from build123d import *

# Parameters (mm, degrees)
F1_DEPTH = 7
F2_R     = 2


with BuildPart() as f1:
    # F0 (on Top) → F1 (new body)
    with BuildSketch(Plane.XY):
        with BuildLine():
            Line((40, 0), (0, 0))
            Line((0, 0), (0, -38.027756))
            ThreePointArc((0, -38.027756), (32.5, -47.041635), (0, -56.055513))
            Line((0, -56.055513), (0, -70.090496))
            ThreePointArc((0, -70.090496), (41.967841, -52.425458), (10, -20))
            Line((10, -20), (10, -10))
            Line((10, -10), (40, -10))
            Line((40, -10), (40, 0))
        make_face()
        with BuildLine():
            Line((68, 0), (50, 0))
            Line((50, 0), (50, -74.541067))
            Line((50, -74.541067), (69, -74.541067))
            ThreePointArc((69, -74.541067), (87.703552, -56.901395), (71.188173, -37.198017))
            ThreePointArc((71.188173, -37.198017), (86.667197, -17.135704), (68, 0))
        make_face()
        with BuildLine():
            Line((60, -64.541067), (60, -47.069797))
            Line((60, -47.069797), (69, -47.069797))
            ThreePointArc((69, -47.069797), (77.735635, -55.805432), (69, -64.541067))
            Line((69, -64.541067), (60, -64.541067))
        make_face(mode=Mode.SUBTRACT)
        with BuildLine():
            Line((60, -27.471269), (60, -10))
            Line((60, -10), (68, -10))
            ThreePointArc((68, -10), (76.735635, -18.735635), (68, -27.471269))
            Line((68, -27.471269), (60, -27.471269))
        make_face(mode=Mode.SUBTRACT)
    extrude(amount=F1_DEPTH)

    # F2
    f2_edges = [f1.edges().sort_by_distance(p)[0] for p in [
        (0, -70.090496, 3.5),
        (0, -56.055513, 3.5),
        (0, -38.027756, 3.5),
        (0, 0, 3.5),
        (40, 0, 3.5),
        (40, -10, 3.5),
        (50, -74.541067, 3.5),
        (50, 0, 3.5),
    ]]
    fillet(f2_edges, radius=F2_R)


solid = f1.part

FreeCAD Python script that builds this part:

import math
import FreeCAD as App
import Part
import Sketcher
Q = App.Units.Quantity


def edges_at(feature, points):
    """Names of the edges that pass closest to the given points."""
    edges = feature.Shape.Edges
    near = lambda p: min(range(len(edges)), key=lambda i: edges[i].distToShape(Part.Vertex(*p))[0])
    return sorted({f"Edge{near(p) + 1}" for p in points})

doc = App.newDocument("Part")
params = doc.addObject("Spreadsheet::Sheet", "Params")
for row, (alias, value) in enumerate([
    ("sketch1_radius", "17.5 mm"),
    ("sketch1_radius2", "27.5 mm"),
    ("sketch1_width", "40 mm"),
    ("sketch1_width2", "30 mm"),
    ("sketch1_width3", "18 mm"),
    ("pad1_length", "7 mm"),
    ("fillet_radius", "2 mm"),
], start=1):
    params.set(f"A{row}", alias)
    params.set(f"B{row}", "=" + value)
    params.setAlias(f"B{row}", alias)

body = doc.addObject("PartDesign::Body", "Body")
body.AllowCompound = True

# Sketch on XY plane
sketch1 = body.newObject("Sketcher::SketchObject", "Sketch")
sketch1.AttachmentSupport = (doc.getObject("XY_Plane"), [""])
sketch1.MapMode = "FlatFace"
sketch1.addGeometry([
    Part.LineSegment(App.Vector(40, 0, 0), App.Vector(0, 0, 0)),  # 0
    Part.LineSegment(App.Vector(0, 0, 0), App.Vector(0, -38, 0)),  # 1
    Part.ArcOfCircle(Part.Circle(App.Vector(15, -47, 0), App.Vector(0, 0, 1), 18), math.radians(-149), math.radians(149)),  # 2
    Part.LineSegment(App.Vector(0, -56, 0), App.Vector(0, -70, 0)),  # 3
    Part.ArcOfCircle(Part.Circle(App.Vector(15, -47, 0), App.Vector(0, 0, 1), 28), math.radians(-123), math.radians(100)),  # 4
    Part.LineSegment(App.Vector(10, -20, 0), App.Vector(10, -10, 0)),  # 5
    Part.LineSegment(App.Vector(10, -10, 0), App.Vector(40, -10, 0)),  # 6
    Part.LineSegment(App.Vector(40, -10, 0), App.Vector(40, 0, 0)),  # 7
    Part.LineSegment(App.Vector(68, 0, 0), App.Vector(50, 0, 0)),  # 8
    Part.LineSegment(App.Vector(50, 0, 0), App.Vector(50, -75, 0)),  # 9
    Part.LineSegment(App.Vector(50, -75, 0), App.Vector(69, -75, 0)),  # 10
    Part.ArcOfCircle(Part.Circle(App.Vector(69, -56, 0), App.Vector(0, 0, 1), 19), math.radians(-90), math.radians(83)),  # 11
    Part.ArcOfCircle(Part.Circle(App.Vector(68, -19, 0), App.Vector(0, 0, 1), 19), math.radians(-80), math.radians(90)),  # 12
    Part.LineSegment(App.Vector(69, -65, 0), App.Vector(60, -65, 0)),  # 13
    Part.LineSegment(App.Vector(60, -65, 0), App.Vector(60, -47, 0)),  # 14
    Part.LineSegment(App.Vector(60, -47, 0), App.Vector(69, -47, 0)),  # 15
    Part.ArcOfCircle(Part.Circle(App.Vector(69, -56, 0), App.Vector(0, 0, 1), 9), math.radians(-90), math.radians(90)),  # 16
    Part.LineSegment(App.Vector(68, -27, 0), App.Vector(60, -27, 0)),  # 17
    Part.LineSegment(App.Vector(60, -27, 0), App.Vector(60, -10, 0)),  # 18
    Part.LineSegment(App.Vector(60, -10, 0), App.Vector(68, -10, 0)),  # 19
    Part.ArcOfCircle(Part.Circle(App.Vector(68, -19, 0), App.Vector(0, 0, 1), 9), math.radians(-90), math.radians(90)),  # 20
], False)
sketch1.addConstraint([
    Sketcher.Constraint("Coincident", 0, 2, 1, 1),
    Sketcher.Constraint("Coincident", 1, 2, 2, 2),
    Sketcher.Constraint("Coincident", 2, 1, 3, 1),
    Sketcher.Constraint("Coincident", 3, 2, 4, 1),
    Sketcher.Constraint("Coincident", 4, 2, 5, 1),
    Sketcher.Constraint("Coincident", 5, 2, 6, 1),
    Sketcher.Constraint("Coincident", 6, 2, 7, 1),
    Sketcher.Constraint("Coincident", 7, 2, 0, 1),
    Sketcher.Constraint("Coincident", 8, 2, 9, 1),
    Sketcher.Constraint("Coincident", 9, 2, 10, 1),
    Sketcher.Constraint("Tangent", 10, 2, 11, 1),
    Sketcher.Constraint("Coincident", 11, 2, 12, 1),
    Sketcher.Constraint("Tangent", 12, 2, 8, 1),
    Sketcher.Constraint("Coincident", 13, 2, 14, 1),
    Sketcher.Constraint("Coincident", 14, 2, 15, 1),
    Sketcher.Constraint("Tangent", 15, 2, 16, 2),
    Sketcher.Constraint("Tangent", 16, 1, 13, 1),
    Sketcher.Constraint("Coincident", 17, 2, 18, 1),
    Sketcher.Constraint("Coincident", 18, 2, 19, 1),
    Sketcher.Constraint("Tangent", 19, 2, 20, 2),
    Sketcher.Constraint("Tangent", 20, 1, 17, 1),
    Sketcher.Constraint("Horizontal", 0),
    Sketcher.Constraint("Vertical", 1),
    Sketcher.Constraint("Vertical", 3),
    Sketcher.Constraint("Vertical", 5),
    Sketcher.Constraint("Horizontal", 6),
    Sketcher.Constraint("Vertical", 7),
    Sketcher.Constraint("Horizontal", 8),
    Sketcher.Constraint("Vertical", 9),
    Sketcher.Constraint("Horizontal", 10),
    Sketcher.Constraint("Horizontal", 13),
    Sketcher.Constraint("Vertical", 14),
    Sketcher.Constraint("Horizontal", 15),
    Sketcher.Constraint("Horizontal", 17),
    Sketcher.Constraint("Vertical", 18),
    Sketcher.Constraint("Horizontal", 19),
    Sketcher.Constraint("Coincident", 0, 2, -1, 1),
    Sketcher.Constraint("Coincident", 4, 3, 2, 3),
    Sketcher.Constraint("Coincident", 16, 3, 11, 3),
    Sketcher.Constraint("Coincident", 20, 3, 12, 3),
    Sketcher.Constraint("Equal", 11, 12),
    Sketcher.Constraint("Equal", 16, 20),
    Sketcher.Constraint("PointOnObject", 2, 1, -2),
    Sketcher.Constraint("PointOnObject", 8, 2, -1),
    Sketcher.Constraint("Horizontal", 6, 2, 18, 2),
    Sketcher.Constraint("Vertical", 14, 2, 17, 2),
    Sketcher.Constraint("Equal", 5, 7),
    Sketcher.Constraint("Radius", 2, Q("17.5 mm")),
    Sketcher.Constraint("Radius", 4, Q("27.5 mm")),
    Sketcher.Constraint("DistanceX", 0, 2, 0, 1, Q("40 mm")),
    Sketcher.Constraint("DistanceX", 6, 1, 6, 2, Q("30 mm")),
    Sketcher.Constraint("DistanceX", 8, 2, 8, 1, Q("18 mm")),
    Sketcher.Constraint("DistanceX", 10, 1, 10, 2, Q("19 mm")),
    Sketcher.Constraint("DistanceX", 13, 2, 13, 1, Q("9 mm")),
    Sketcher.Constraint("DistanceY", 5, 1, 5, 2, Q("10 mm")),
    Sketcher.Constraint("DistanceX", -1, 1, 2, 3, Q("15 mm")),
    Sketcher.Constraint("DistanceX", -1, 1, 11, 3, Q("69 mm")),
    Sketcher.Constraint("Radius", 11, Q("18.735635 mm")),
    Sketcher.Constraint("DistanceY", 9, 2, 9, 1, Q("74.541067 mm")),
])
sketch1.setExpression("Constraints[47]", "Params.sketch1_radius")
sketch1.setExpression("Constraints[48]", "Params.sketch1_radius2")
sketch1.setExpression("Constraints[49]", "Params.sketch1_width")
sketch1.setExpression("Constraints[50]", "Params.sketch1_width2")
sketch1.setExpression("Constraints[51]", "Params.sketch1_width3")
pad1 = body.newObject("PartDesign::Pad", "Pad")
pad1.Profile = sketch1
pad1.setExpression("Length", "Params.pad1_length")
doc.recompute()

fillet = body.newObject("PartDesign::Fillet", "Fillet")
fillet.Base = (pad1, edges_at(pad1, [
    (0, -70.09, 3.5),
    (0, -56.056, 3.5),
    (0, -38.028, 3.5),
    (0, 0, 3.5),
    (40, 0, 3.5),
    (40, -10, 3.5),
    (50, -74.541, 3.5),
    (50, 0, 3.5),
]))
fillet.setExpression("Radius", "Params.fillet_radius")

doc.recompute()
